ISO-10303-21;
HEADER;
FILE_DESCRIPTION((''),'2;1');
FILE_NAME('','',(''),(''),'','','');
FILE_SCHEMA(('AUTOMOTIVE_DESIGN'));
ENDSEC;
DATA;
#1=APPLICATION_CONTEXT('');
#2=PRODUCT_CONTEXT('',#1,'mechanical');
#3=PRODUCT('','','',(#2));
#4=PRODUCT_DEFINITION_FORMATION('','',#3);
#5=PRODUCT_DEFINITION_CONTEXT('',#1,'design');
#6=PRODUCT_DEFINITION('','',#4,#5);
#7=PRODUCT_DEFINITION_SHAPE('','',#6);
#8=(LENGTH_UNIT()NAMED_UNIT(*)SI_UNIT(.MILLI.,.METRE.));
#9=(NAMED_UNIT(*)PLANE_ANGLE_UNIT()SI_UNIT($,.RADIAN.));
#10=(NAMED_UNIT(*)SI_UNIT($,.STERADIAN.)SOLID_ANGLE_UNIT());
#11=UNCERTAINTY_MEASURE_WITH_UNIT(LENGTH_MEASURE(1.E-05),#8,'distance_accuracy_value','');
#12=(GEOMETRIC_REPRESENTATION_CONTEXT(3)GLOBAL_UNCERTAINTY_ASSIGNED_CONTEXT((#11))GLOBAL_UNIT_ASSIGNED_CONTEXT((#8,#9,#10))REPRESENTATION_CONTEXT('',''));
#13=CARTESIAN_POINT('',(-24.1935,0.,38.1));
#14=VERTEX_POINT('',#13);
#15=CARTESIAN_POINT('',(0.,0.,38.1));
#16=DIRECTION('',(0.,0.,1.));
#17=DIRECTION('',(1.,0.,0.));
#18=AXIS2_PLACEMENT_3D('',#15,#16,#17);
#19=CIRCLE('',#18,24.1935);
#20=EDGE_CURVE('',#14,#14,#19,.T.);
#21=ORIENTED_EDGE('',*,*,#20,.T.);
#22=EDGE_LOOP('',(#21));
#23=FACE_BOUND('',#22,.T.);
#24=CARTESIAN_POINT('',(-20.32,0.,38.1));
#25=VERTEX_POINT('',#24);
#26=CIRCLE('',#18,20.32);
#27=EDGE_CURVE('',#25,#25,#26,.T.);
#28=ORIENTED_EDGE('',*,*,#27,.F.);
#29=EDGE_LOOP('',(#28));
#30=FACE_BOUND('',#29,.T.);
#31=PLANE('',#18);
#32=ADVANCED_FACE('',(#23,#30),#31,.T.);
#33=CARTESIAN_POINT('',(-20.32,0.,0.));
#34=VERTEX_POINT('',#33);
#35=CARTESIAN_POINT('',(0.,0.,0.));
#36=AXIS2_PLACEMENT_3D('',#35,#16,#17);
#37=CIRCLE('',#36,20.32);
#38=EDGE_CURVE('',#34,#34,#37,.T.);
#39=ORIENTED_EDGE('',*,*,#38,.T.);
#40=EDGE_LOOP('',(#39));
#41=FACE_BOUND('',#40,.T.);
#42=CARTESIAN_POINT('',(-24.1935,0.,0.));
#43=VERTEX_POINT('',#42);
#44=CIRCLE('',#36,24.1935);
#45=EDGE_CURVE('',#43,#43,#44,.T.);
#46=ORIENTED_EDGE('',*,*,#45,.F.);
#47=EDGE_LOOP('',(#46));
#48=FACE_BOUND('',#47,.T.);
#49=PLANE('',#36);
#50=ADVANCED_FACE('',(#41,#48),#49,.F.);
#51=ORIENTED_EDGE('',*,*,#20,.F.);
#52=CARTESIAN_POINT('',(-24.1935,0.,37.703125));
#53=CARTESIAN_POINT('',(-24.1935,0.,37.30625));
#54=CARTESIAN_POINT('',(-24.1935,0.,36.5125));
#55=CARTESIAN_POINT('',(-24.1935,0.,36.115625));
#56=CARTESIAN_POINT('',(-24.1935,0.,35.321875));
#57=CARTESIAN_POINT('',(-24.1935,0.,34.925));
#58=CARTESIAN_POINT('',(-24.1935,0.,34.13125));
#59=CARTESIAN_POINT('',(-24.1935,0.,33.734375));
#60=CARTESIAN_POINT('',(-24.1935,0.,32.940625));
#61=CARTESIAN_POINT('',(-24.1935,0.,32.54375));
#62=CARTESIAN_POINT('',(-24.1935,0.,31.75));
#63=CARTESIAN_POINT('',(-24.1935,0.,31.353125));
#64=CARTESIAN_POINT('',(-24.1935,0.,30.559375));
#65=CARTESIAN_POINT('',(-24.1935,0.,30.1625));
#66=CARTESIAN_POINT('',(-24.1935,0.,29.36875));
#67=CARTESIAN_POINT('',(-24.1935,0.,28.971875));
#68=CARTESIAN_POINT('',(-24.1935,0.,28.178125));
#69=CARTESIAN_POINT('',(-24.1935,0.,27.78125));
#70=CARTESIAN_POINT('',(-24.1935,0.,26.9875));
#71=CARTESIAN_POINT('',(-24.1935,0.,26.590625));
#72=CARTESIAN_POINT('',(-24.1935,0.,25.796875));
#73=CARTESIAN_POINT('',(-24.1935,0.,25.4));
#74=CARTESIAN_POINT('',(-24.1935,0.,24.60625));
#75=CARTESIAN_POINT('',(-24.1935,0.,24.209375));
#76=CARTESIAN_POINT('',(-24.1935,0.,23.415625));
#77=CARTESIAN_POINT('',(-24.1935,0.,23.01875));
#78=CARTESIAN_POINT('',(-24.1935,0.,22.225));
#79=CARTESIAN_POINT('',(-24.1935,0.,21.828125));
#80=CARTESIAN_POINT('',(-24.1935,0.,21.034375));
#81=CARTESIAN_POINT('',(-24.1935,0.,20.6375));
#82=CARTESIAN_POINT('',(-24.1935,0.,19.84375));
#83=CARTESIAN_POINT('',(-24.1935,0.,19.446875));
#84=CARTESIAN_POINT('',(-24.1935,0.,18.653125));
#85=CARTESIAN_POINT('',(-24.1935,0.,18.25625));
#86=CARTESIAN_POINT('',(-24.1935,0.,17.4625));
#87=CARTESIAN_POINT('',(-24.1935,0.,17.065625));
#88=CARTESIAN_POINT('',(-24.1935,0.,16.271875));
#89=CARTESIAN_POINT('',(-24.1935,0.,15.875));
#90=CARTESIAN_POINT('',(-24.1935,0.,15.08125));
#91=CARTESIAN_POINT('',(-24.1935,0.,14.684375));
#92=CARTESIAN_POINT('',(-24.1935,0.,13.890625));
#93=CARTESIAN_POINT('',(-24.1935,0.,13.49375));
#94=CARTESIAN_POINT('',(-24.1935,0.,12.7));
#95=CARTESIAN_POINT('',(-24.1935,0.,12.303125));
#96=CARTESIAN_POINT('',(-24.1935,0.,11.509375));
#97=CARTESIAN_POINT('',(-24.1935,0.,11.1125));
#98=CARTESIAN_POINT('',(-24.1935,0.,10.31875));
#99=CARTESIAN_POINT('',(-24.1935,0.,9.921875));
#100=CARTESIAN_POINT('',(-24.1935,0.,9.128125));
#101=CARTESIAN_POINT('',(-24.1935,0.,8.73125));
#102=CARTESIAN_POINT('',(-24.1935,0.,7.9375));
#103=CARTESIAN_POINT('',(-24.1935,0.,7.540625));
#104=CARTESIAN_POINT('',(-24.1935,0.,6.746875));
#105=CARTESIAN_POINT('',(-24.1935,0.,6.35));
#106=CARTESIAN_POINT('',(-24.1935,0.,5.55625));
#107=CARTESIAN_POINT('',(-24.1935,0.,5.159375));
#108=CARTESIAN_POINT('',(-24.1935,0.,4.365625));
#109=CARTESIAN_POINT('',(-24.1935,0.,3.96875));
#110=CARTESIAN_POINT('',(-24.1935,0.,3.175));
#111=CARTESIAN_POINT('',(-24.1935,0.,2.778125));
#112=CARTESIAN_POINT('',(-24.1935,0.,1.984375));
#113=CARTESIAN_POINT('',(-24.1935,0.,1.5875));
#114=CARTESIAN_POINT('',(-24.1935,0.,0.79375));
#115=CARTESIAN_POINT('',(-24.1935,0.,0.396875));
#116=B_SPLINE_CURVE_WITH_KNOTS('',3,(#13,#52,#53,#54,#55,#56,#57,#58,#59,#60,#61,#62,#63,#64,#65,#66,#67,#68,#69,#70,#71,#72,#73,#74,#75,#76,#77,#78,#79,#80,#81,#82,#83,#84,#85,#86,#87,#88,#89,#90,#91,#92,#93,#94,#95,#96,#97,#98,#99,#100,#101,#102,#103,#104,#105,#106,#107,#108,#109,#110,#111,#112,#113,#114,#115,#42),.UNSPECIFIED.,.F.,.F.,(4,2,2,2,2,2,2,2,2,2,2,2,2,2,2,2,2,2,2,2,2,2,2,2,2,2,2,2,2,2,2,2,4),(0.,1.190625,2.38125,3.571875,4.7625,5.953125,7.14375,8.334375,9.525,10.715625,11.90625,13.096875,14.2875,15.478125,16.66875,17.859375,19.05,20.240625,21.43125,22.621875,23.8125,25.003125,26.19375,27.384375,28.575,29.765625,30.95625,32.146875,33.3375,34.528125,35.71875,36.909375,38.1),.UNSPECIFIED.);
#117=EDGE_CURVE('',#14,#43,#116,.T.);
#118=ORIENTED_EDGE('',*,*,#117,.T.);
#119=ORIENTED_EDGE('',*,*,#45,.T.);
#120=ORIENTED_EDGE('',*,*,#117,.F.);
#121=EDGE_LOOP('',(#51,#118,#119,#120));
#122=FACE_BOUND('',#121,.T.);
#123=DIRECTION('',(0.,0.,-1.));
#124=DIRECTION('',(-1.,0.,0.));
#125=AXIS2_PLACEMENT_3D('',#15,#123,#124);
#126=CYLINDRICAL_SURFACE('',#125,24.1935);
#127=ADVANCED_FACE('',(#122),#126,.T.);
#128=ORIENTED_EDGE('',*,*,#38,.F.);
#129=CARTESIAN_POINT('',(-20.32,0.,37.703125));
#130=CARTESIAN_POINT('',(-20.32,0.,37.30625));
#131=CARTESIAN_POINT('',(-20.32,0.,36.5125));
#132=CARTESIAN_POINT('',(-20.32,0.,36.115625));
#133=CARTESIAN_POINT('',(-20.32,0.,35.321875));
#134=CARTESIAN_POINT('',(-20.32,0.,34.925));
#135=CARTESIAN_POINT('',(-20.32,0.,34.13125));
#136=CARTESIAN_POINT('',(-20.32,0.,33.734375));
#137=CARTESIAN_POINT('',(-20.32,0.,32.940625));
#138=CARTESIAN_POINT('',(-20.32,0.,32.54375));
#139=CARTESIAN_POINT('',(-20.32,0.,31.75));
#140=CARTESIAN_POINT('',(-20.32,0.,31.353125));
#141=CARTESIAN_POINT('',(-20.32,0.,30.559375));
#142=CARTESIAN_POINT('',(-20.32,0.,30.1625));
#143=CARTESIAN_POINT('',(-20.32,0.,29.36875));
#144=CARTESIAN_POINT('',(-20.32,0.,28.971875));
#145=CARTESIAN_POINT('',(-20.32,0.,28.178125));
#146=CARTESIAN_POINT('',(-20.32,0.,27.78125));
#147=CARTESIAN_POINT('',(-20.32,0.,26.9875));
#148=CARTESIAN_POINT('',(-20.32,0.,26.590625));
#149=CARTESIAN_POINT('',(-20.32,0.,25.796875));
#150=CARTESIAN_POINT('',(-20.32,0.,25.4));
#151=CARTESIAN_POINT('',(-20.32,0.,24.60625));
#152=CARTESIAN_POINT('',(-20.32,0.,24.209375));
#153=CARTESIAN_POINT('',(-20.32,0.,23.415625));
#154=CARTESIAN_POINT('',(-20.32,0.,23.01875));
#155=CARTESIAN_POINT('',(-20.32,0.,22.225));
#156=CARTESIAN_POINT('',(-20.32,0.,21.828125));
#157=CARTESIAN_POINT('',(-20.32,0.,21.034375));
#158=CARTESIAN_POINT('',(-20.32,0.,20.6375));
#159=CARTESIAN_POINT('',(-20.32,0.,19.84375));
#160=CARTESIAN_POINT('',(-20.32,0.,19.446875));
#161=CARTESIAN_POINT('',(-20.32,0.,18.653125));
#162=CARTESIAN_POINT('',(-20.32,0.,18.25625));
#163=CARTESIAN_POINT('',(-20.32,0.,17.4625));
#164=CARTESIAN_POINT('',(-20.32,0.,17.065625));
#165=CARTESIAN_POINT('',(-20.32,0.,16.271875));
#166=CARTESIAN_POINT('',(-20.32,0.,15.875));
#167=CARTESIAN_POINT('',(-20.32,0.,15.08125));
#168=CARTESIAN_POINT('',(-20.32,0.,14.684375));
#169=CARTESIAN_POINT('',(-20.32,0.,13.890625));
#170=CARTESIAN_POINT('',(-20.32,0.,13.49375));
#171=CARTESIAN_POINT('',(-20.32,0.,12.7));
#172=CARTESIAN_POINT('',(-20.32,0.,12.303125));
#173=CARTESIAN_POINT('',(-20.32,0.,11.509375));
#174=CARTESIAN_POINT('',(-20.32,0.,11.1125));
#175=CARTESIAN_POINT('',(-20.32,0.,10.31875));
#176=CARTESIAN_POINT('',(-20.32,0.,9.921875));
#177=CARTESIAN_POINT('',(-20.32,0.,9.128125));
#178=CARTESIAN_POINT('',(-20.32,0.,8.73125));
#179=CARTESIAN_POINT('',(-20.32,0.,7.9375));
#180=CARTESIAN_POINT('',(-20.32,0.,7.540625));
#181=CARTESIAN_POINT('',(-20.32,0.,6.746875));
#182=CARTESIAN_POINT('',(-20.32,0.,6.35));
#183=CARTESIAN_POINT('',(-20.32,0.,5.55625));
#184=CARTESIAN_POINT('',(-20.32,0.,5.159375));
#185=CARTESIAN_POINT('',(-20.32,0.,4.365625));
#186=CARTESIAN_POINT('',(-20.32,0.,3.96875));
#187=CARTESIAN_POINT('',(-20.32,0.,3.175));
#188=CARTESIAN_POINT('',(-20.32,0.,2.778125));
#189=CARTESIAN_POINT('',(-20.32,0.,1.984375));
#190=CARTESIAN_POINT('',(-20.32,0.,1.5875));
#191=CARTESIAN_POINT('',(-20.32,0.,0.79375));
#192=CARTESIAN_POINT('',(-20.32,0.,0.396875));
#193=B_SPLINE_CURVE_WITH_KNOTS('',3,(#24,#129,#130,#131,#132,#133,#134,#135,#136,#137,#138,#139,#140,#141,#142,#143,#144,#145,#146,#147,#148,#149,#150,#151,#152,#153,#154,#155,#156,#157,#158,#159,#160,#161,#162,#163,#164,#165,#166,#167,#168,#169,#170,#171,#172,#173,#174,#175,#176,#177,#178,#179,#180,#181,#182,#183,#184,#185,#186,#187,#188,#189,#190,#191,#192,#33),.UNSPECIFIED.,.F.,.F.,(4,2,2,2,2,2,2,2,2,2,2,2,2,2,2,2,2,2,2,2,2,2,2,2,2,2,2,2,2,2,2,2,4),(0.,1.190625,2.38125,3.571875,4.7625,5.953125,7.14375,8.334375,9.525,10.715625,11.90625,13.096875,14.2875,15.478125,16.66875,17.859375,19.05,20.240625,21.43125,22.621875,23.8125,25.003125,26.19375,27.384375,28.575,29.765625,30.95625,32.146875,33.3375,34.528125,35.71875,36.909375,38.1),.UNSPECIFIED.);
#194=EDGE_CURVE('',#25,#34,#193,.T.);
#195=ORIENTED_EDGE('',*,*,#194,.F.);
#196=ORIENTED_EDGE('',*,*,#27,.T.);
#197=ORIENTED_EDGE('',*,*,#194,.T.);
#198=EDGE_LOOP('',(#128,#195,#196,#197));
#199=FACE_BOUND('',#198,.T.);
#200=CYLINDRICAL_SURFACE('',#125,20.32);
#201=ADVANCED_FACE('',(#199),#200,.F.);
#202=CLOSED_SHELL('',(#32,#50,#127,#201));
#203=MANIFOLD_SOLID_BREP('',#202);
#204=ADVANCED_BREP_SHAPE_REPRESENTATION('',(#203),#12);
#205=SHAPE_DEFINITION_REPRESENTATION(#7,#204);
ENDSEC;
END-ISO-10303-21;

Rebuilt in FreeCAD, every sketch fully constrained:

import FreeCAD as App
import Part
import Sketcher

V = App.Vector
Q = App.Units.Quantity

doc = App.newDocument("Part")
body = doc.addObject("PartDesign::Body", "Body")

sketch1 = body.newObject("Sketcher::SketchObject", "Sketch")
sketch1.AttachmentSupport = (doc.getObject("XY_Plane"), [""])
sketch1.MapMode = "FlatFace"
sketch1.addGeometry([
    Part.Circle(V(0, 0, 0), V(0, 0, 1), 24),
    Part.Circle(V(0, 0, 0), V(0, 0, 1), 20),
], False)
sketch1.addConstraint([
    Sketcher.Constraint("Coincident", 0, 3, -1, 1),
    Sketcher.Constraint("Coincident", 1, 3, -1, 1),
    Sketcher.Constraint("Diameter", 1, Q("1.6 in")),
    Sketcher.Constraint("Diameter", 0, Q("1.905 in")),
])
pad1 = body.newObject("PartDesign::Pad", "Pad")
pad1.Profile = sketch1
pad1.Length = Q("1.5 in")

doc.recompute()
